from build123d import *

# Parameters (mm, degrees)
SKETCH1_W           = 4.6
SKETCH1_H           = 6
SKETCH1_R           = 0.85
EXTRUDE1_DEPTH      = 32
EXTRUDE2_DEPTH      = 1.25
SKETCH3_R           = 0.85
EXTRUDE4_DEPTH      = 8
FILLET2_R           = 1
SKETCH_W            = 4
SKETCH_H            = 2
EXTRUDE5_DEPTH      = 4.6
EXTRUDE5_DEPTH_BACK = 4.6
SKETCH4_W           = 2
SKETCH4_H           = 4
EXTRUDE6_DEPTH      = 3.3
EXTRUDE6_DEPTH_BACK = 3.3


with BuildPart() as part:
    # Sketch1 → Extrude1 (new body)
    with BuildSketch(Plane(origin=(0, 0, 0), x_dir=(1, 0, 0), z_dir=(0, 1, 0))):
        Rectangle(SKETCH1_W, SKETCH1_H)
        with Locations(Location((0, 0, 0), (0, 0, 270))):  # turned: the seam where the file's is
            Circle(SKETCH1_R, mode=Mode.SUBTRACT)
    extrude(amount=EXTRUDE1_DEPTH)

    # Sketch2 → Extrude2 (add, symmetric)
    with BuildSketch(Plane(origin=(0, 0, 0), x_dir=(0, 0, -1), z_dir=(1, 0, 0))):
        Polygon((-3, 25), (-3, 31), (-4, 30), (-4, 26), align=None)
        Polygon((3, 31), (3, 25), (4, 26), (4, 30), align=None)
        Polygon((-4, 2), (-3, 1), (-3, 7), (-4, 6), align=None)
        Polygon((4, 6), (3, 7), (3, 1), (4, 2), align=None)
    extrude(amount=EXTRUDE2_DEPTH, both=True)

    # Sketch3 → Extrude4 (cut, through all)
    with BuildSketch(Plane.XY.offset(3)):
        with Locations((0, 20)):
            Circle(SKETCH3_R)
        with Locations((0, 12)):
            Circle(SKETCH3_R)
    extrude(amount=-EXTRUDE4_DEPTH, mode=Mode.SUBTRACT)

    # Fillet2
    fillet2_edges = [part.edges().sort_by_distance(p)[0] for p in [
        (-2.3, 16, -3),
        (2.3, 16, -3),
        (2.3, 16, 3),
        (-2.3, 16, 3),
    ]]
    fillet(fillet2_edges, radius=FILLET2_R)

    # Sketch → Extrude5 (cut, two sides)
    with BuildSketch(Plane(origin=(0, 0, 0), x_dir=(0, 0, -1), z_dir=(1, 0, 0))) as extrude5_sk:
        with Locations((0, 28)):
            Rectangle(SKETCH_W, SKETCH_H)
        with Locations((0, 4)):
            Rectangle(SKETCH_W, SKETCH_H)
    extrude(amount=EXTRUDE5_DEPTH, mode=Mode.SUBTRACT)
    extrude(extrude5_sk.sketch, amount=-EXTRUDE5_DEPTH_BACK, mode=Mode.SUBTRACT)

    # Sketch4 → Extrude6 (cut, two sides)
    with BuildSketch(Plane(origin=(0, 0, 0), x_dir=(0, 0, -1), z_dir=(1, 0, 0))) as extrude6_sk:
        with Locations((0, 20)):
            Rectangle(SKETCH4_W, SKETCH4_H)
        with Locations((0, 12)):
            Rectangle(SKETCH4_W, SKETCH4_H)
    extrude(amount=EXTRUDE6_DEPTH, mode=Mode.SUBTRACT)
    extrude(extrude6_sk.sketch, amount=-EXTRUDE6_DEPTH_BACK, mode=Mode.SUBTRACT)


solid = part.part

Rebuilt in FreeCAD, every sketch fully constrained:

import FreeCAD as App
import Part
import Sketcher
from FreeCAD import Vector
Q = App.Units.Quantity


def edges_at(feature, points):
    """Names of the edges that pass closest to the given points."""
    edges = feature.Shape.Edges
    near = lambda p: min(range(len(edges)), key=lambda i: edges[i].distToShape(Part.Vertex(*p))[0])
    return sorted({f"Edge{near(p) + 1}" for p in points})

doc = App.newDocument("Part")
body = doc.addObject("PartDesign::Body", "Body")

# Sketch on XZ plane
sketch1 = body.newObject("Sketcher::SketchObject", "Sketch")
sketch1.AttachmentSupport = (doc.getObject("XZ_Plane"), [""])
sketch1.MapMode = "FlatFace"
sketch1.addGeometry([
    Part.LineSegment(Vector(-2.3, -3, 0), Vector(-2.3, 3, 0)),  # 0
    Part.LineSegment(Vector(-2.3, 3, 0), Vector(2.3, 3, 0)),  # 1
    Part.LineSegment(Vector(2.3, 3, 0), Vector(2.3, -3, 0)),  # 2
    Part.LineSegment(Vector(2.3, -3, 0), Vector(-2.3, -3, 0)),  # 3
    Part.Circle(Vector(0, 0, 0), Vector(0, 0, 1), 0.8),  # 4
], False)
sketch1.addConstraint([
    Sketcher.Constraint("Coincident", 0, 2, 1, 1),
    Sketcher.Constraint("Coincident", 1, 2, 2, 1),
    Sketcher.Constraint("Coincident", 2, 2, 3, 1),
    Sketcher.Constraint("Coincident", 3, 2, 0, 1),
    Sketcher.Constraint("Vertical", 0),
    Sketcher.Constraint("Horizontal", 1),
    Sketcher.Constraint("Vertical", 2),
    Sketcher.Constraint("Horizontal", 3),
    Sketcher.Constraint("Coincident", 4, 3, -1, 1),
    Sketcher.Constraint("Symmetric", 0, 2, 2, 2, -1, 1),
    Sketcher.Constraint("Diameter", 4, Q("1.7 mm")),
    Sketcher.Constraint("DistanceY", 0, 1, 0, 2, Q("6 mm")),
    Sketcher.Constraint("DistanceX", 1, 1, 1, 2, Q("4.6 mm")),
])
pad1 = body.newObject("PartDesign::Pad", "Pad")
pad1.Profile = sketch1
pad1.Length = 32
pad1.Reversed = True

# Sketch on YZ plane
sketch2 = body.newObject("Sketcher::SketchObject", "Sketch001")
sketch2.AttachmentSupport = (doc.getObject("YZ_Plane"), [""])
sketch2.MapMode = "FlatFace"
sketch2.addGeometry([
    Part.LineSegment(Vector(25, 3, 0), Vector(31, 3, 0)),  # 0
    Part.LineSegment(Vector(31, 3, 0), Vector(30, 4, 0)),  # 1
    Part.LineSegment(Vector(30, 4, 0), Vector(26, 4, 0)),  # 2
    Part.LineSegment(Vector(26, 4, 0), Vector(25, 3, 0)),  # 3
    Part.LineSegment(Vector(31, -3, 0), Vector(25, -3, 0)),  # 4
    Part.LineSegment(Vector(25, -3, 0), Vector(26, -4, 0)),  # 5
    Part.LineSegment(Vector(26, -4, 0), Vector(30, -4, 0)),  # 6
    Part.LineSegment(Vector(30, -4, 0), Vector(31, -3, 0)),  # 7
    Part.LineSegment(Vector(2, 4, 0), Vector(1, 3, 0)),  # 8
    Part.LineSegment(Vector(1, 3, 0), Vector(7, 3, 0)),  # 9
    Part.LineSegment(Vector(7, 3, 0), Vector(6, 4, 0)),  # 10
    Part.LineSegment(Vector(6, 4, 0), Vector(2, 4, 0)),  # 11
    Part.LineSegment(Vector(6, -4, 0), Vector(7, -3, 0)),  # 12
    Part.LineSegment(Vector(7, -3, 0), Vector(1, -3, 0)),  # 13
    Part.LineSegment(Vector(1, -3, 0), Vector(2, -4, 0)),  # 14
    Part.LineSegment(Vector(2, -4, 0), Vector(6, -4, 0)),  # 15
], False)
sketch2.addConstraint([
    Sketcher.Constraint("Coincident", 0, 2, 1, 1),
    Sketcher.Constraint("Coincident", 1, 2, 2, 1),
    Sketcher.Constraint("Coincident", 2, 2, 3, 1),
    Sketcher.Constraint("Coincident", 3, 2, 0, 1),
    Sketcher.Constraint("Coincident", 4, 2, 5, 1),
    Sketcher.Constraint("Coincident", 5, 2, 6, 1),
    Sketcher.Constraint("Coincident", 6, 2, 7, 1),
    Sketcher.Constraint("Coincident", 7, 2, 4, 1),
    Sketcher.Constraint("Coincident", 8, 2, 9, 1),
    Sketcher.Constraint("Coincident", 9, 2, 10, 1),
    Sketcher.Constraint("Coincident", 10, 2, 11, 1),
    Sketcher.Constraint("Coincident", 11, 2, 8, 1),
    Sketcher.Constraint("Coincident", 12, 2, 13, 1),
    Sketcher.Constraint("Coincident", 13, 2, 14, 1),
    Sketcher.Constraint("Coincident", 14, 2, 15, 1),
    Sketcher.Constraint("Coincident", 15, 2, 12, 1),
    Sketcher.Constraint("Horizontal", 0),
    Sketcher.Constraint("Horizontal", 2),
    Sketcher.Constraint("Horizontal", 4),
    Sketcher.Constraint("Horizontal", 6),
    Sketcher.Constraint("Horizontal", 9),
    Sketcher.Constraint("Horizontal", 11),
    Sketcher.Constraint("Horizontal", 13),
    Sketcher.Constraint("Horizontal", 15),
    Sketcher.Constraint("Symmetric", 3, 2, 4, 2, -1),
    Sketcher.Constraint("Symmetric", 2, 2, 5, 2, -1),
    Sketcher.Constraint("Symmetric", 9, 2, 12, 2, -1),
    Sketcher.Constraint("Symmetric", 11, 2, 14, 2, -1),
    Sketcher.Constraint("Perpendicular", 1, 3),
    Sketcher.Constraint("Perpendicular", 3, 5),
    Sketcher.Constraint("Perpendicular", 5, 7),
    Sketcher.Constraint("Parallel", 7, 8),
    Sketcher.Constraint("Perpendicular", 8, 10),
    Sketcher.Constraint("Perpendicular", 10, 12),
    Sketcher.Constraint("Perpendicular", 12, 14),
    Sketcher.Constraint("Horizontal", 3, 2, 8, 2),
    Sketcher.Constraint("Horizontal", 2, 2, 10, 2),
    Sketcher.Constraint("Vertical", 1, 2, 6, 2),
    Sketcher.Constraint("Equal", 4, 9),
    Sketcher.Constraint("DistanceX", 0, 1, 0, 2, Q("6 mm")),
    Sketcher.Constraint("DistanceX", 2, 2, 2, 1, Q("4 mm")),
    Sketcher.Constraint("DistanceX", -1, 1, 0, 2, Q("31 mm")),
    Sketcher.Constraint("DistanceY", -1, 1, 0, 2, Q("3 mm")),
    Sketcher.Constraint("DistanceX", -1, 1, 8, 2, Q("1 mm")),
])
pad2 = body.newObject("PartDesign::Pad", "Pad001")
pad2.Profile = sketch2
pad2.Length = 2.5
pad2.Midplane = True

# Sketch on XY plane
sketch3 = body.newObject("Sketcher::SketchObject", "Sketch002")
sketch3.AttachmentSupport = (doc.getObject("XY_Plane"), [""])
sketch3.MapMode = "FlatFace"
sketch3.AttachmentOffset = App.Placement(Vector(0, 0, 3), App.Rotation())
sketch3.addGeometry([
    Part.Circle(Vector(0, 20, 0), Vector(0, 0, 1), 0.8),
    Part.Circle(Vector(0, 12, 0), Vector(0, 0, 1), 0.8),
], False)
sketch3.addConstraint([
    Sketcher.Constraint("Equal", 0, 1),
    Sketcher.Constraint("PointOnObject", 0, 3, -2),
    Sketcher.Constraint("PointOnObject", 1, 3, -2),
    Sketcher.Constraint("Diameter", 0, Q("1.7 mm")),
    Sketcher.Constraint("DistanceY", -1, 1, 0, 3, Q("20 mm")),
    Sketcher.Constraint("DistanceY", -1, 1, 1, 3, Q("12 mm")),
])
pocket1 = body.newObject("PartDesign::Pocket", "Pocket")
pocket1.Profile = sketch3
pocket1.Type = "ThroughAll"
doc.recompute()

fillet = body.newObject("PartDesign::Fillet", "Fillet")
fillet.Base = (pocket1, edges_at(pocket1, [
    (-2.3, 16, -3),
    (2.3, 16, -3),
    (2.3, 16, 3),
    (-2.3, 16, 3),
]))
fillet.Radius = 1

# Sketch on YZ plane
sketch4 = body.newObject("Sketcher::SketchObject", "Sketch003")
sketch4.AttachmentSupport = (doc.getObject("YZ_Plane"), [""])
sketch4.MapMode = "FlatFace"
sketch4.addGeometry([
    Part.LineSegment(Vector(29, 2, 0), Vector(27, 2, 0)),  # 0
    Part.LineSegment(Vector(27, 2, 0), Vector(27, -2, 0)),  # 1
    Part.LineSegment(Vector(27, -2, 0), Vector(29, -2, 0)),  # 2
    Part.LineSegment(Vector(29, -2, 0), Vector(29, 2, 0)),  # 3
    Part.LineSegment(Vector(5, 2, 0), Vector(3, 2, 0)),  # 4
    Part.LineSegment(Vector(3, 2, 0), Vector(3, -2, 0)),  # 5
    Part.LineSegment(Vector(3, -2, 0), Vector(5, -2, 0)),  # 6
    Part.LineSegment(Vector(5, -2, 0), Vector(5, 2, 0)),  # 7
], False)
sketch4.addConstraint([
    Sketcher.Constraint("Coincident", 0, 2, 1, 1),
    Sketcher.Constraint("Coincident", 1, 2, 2, 1),
    Sketcher.Constraint("Coincident", 2, 2, 3, 1),
    Sketcher.Constraint("Coincident", 3, 2, 0, 1),
    Sketcher.Constraint("Coincident", 4, 2, 5, 1),
    Sketcher.Constraint("Coincident", 5, 2, 6, 1),
    Sketcher.Constraint("Coincident", 6, 2, 7, 1),
    Sketcher.Constraint("Coincident", 7, 2, 4, 1),
    Sketcher.Constraint("Horizontal", 0),
    Sketcher.Constraint("Vertical", 1),
    Sketcher.Constraint("Horizontal", 2),
    Sketcher.Constraint("Vertical", 3),
    Sketcher.Constraint("Horizontal", 4),
    Sketcher.Constraint("Vertical", 5),
    Sketcher.Constraint("Horizontal", 6),
    Sketcher.Constraint("Vertical", 7),
    Sketcher.Constraint("Horizontal", 3, 2, 4, 2),
    Sketcher.Constraint("Horizontal", 2, 2, 5, 2),
    Sketcher.Constraint("Equal", 2, 4),
    Sketcher.Constraint("DistanceX", 0, 2, 0, 1, Q("2 mm")),
    Sketcher.Constraint("DistanceY", 1, 2, 1, 1, Q("4 mm")),
    Sketcher.Constraint("DistanceX", -1, 1, 0, 2, Q("27 mm")),
    Sketcher.Constraint("DistanceY", -1, 1, 0, 2, Q("2 mm")),
    Sketcher.Constraint("DistanceX", -1, 1, 4, 2, Q("3 mm")),
])
pocket2 = body.newObject("PartDesign::Pocket", "Pocket001")
pocket2.Profile = sketch4
pocket2.Type = "ThroughAll"
pocket2.Midplane = True

# Sketch on YZ plane
sketch5 = body.newObject("Sketcher::SketchObject", "Sketch004")
sketch5.AttachmentSupport = (doc.getObject("YZ_Plane"), [""])
sketch5.MapMode = "FlatFace"
sketch5.addGeometry([
    Part.LineSegment(Vector(22, 1, 0), Vector(18, 1, 0)),  # 0
    Part.LineSegment(Vector(18, 1, 0), Vector(18, -1, 0)),  # 1
    Part.LineSegment(Vector(18, -1, 0), Vector(22, -1, 0)),  # 2
    Part.LineSegment(Vector(22, -1, 0), Vector(22, 1, 0)),  # 3
    Part.LineSegment(Vector(14, 1, 0), Vector(10, 1, 0)),  # 4
    Part.LineSegment(Vector(10, 1, 0), Vector(10, -1, 0)),  # 5
    Part.LineSegment(Vector(10, -1, 0), Vector(14, -1, 0)),  # 6
    Part.LineSegment(Vector(14, -1, 0), Vector(14, 1, 0)),  # 7
], False)
sketch5.addConstraint([
    Sketcher.Constraint("Coincident", 0, 2, 1, 1),
    Sketcher.Constraint("Coincident", 1, 2, 2, 1),
    Sketcher.Constraint("Coincident", 2, 2, 3, 1),
    Sketcher.Constraint("Coincident", 3, 2, 0, 1),
    Sketcher.Constraint("Coincident", 4, 2, 5, 1),
    Sketcher.Constraint("Coincident", 5, 2, 6, 1),
    Sketcher.Constraint("Coincident", 6, 2, 7, 1),
    Sketcher.Constraint("Coincident", 7, 2, 4, 1),
    Sketcher.Constraint("Horizontal", 0),
    Sketcher.Constraint("Vertical", 1),
    Sketcher.Constraint("Horizontal", 2),
    Sketcher.Constraint("Vertical", 3),
    Sketcher.Constraint("Horizontal", 4),
    Sketcher.Constraint("Vertical", 5),
    Sketcher.Constraint("Horizontal", 6),
    Sketcher.Constraint("Vertical", 7),
    Sketcher.Constraint("Horizontal", 3, 2, 4, 2),
    Sketcher.Constraint("Horizontal", 2, 2, 5, 2),
    Sketcher.Constraint("Equal", 2, 4),
    Sketcher.Constraint("DistanceX", 0, 2, 0, 1, Q("4 mm")),
    Sketcher.Constraint("DistanceY", 1, 2, 1, 1, Q("2 mm")),
    Sketcher.Constraint("DistanceX", -1, 1, 0, 2, Q("18 mm")),
    Sketcher.Constraint("DistanceY", -1, 1, 0, 2, Q("1 mm")),
    Sketcher.Constraint("DistanceX", -1, 1, 4, 2, Q("10 mm")),
])
pocket3 = body.newObject("PartDesign::Pocket", "Pocket002")
pocket3.Profile = sketch5
pocket3.Type = "ThroughAll"
pocket3.Midplane = True

doc.recompute()
